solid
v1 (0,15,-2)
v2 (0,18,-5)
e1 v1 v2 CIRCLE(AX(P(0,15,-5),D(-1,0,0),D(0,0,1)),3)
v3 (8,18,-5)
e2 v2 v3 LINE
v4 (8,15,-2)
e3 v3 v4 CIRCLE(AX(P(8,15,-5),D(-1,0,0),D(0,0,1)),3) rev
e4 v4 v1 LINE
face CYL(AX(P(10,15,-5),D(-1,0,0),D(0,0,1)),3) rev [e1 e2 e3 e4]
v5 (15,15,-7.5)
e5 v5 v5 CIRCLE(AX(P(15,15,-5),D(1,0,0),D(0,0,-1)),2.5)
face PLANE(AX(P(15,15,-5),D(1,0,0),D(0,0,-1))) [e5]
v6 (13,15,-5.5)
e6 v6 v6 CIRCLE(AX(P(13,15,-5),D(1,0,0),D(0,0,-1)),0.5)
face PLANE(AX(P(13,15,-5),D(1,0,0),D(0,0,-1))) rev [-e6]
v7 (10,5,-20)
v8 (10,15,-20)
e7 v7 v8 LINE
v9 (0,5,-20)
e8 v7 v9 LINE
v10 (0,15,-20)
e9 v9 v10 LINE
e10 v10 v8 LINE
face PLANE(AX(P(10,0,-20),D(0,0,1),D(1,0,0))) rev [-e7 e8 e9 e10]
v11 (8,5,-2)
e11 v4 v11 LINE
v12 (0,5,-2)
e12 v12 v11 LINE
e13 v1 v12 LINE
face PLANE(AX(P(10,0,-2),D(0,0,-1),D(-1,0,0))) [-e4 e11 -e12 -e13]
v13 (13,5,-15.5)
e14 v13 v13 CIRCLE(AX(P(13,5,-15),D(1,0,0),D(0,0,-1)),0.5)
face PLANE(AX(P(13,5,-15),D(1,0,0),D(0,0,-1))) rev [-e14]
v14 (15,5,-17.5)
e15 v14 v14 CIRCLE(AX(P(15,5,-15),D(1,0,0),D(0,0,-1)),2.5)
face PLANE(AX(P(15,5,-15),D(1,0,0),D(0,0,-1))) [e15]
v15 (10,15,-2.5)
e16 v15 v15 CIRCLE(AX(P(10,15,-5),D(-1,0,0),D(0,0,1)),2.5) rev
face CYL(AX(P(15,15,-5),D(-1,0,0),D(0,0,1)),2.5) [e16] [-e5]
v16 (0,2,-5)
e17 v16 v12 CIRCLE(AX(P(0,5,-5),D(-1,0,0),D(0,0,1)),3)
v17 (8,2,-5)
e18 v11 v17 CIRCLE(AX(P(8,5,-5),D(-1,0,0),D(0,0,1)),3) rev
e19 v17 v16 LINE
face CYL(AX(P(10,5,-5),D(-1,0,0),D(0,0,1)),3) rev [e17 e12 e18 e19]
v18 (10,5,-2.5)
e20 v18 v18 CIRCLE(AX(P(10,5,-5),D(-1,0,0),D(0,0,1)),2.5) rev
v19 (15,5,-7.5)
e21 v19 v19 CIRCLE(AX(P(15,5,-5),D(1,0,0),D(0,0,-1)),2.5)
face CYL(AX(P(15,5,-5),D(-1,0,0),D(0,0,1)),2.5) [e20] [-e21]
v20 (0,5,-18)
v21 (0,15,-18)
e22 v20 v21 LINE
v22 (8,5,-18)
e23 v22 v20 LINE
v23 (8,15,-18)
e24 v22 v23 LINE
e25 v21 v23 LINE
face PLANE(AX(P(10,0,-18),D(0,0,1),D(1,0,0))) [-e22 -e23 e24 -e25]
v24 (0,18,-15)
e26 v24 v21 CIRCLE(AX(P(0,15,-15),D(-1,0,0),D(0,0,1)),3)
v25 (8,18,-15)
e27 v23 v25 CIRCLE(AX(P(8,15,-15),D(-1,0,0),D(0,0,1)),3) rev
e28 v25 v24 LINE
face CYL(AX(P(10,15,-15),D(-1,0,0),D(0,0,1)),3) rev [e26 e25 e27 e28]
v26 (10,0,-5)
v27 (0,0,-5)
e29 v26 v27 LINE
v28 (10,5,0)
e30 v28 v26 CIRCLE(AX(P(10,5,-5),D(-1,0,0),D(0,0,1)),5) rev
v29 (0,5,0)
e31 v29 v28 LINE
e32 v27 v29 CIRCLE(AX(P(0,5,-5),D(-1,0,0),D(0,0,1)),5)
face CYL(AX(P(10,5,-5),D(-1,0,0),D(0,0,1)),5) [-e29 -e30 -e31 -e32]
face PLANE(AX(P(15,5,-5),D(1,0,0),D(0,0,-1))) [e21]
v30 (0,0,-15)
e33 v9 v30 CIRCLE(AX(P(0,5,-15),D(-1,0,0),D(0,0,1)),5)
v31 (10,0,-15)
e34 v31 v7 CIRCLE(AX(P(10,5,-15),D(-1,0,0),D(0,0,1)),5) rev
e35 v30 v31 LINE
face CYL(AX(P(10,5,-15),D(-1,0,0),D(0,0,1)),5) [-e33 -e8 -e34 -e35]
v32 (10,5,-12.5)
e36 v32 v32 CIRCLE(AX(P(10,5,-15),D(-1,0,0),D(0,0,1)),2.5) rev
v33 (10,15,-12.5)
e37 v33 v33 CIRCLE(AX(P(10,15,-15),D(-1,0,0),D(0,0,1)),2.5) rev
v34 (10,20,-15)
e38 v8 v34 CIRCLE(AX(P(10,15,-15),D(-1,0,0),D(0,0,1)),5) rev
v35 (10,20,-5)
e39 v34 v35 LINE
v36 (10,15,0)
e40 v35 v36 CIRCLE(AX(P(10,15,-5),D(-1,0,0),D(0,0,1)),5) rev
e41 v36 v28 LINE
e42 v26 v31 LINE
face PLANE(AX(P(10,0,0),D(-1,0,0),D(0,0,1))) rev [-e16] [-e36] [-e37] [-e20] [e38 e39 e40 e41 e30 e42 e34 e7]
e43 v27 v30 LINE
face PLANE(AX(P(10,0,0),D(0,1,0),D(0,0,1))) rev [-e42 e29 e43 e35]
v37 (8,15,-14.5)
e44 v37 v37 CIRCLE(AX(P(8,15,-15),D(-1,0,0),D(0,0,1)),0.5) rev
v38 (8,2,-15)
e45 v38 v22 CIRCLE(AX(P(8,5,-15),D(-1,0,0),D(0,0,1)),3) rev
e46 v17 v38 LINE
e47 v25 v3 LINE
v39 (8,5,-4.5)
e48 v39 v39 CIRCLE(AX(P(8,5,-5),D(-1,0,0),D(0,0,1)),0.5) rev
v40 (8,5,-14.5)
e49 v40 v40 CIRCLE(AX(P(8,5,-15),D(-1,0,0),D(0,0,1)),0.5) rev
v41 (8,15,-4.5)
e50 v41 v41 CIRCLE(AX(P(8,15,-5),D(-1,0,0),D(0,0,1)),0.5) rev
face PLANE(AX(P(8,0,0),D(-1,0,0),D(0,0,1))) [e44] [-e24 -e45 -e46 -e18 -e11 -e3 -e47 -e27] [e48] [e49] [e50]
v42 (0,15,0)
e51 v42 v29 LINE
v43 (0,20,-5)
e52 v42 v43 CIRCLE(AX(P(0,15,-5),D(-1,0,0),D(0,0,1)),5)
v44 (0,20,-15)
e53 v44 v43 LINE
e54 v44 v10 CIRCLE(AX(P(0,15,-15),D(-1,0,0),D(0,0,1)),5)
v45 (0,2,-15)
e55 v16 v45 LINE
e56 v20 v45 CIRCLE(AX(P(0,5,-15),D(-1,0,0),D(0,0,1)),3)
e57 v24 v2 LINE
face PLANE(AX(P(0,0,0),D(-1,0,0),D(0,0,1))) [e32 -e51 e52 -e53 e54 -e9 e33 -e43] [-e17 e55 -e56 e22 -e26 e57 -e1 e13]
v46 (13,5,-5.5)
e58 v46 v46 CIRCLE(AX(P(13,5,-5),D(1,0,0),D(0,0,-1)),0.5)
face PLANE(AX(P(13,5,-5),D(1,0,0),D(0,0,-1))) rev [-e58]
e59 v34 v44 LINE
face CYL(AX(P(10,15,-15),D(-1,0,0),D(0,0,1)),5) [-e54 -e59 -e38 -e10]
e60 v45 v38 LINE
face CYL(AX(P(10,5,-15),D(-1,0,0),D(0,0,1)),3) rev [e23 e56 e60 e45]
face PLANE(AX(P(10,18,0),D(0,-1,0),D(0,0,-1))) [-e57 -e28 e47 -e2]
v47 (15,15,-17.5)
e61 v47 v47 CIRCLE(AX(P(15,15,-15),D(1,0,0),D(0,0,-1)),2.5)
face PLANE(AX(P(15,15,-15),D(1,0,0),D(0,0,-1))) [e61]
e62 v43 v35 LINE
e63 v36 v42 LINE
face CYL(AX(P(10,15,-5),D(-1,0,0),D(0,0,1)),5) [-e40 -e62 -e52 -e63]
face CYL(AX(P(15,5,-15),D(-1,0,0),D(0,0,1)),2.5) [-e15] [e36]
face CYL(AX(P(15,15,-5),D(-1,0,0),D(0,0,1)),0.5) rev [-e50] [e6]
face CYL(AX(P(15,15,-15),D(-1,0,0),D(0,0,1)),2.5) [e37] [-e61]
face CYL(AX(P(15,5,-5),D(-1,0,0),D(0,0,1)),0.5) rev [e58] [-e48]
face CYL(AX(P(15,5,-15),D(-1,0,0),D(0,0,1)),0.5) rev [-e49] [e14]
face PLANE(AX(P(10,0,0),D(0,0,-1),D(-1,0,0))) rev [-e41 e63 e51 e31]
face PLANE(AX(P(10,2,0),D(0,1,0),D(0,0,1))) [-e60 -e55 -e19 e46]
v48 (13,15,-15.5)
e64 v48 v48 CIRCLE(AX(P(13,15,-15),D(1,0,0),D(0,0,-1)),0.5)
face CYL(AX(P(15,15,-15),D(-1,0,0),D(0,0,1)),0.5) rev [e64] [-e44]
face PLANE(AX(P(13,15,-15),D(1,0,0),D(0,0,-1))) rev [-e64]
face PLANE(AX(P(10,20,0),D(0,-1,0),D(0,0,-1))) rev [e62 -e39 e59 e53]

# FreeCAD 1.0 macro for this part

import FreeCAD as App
import Part
import Sketcher


def edges_at(feature, points):
    """Names of the edges that pass closest to the given points."""
    edges = feature.Shape.Edges
    near = lambda p: min(range(len(edges)), key=lambda i: edges[i].distToShape(Part.Vertex(*p))[0])
    return sorted({f"Edge{near(p) + 1}" for p in points})


def faces_at(feature, points):
    """Names of the faces that lie closest to the given points."""
    faces = feature.Shape.Faces
    near = lambda p: min(range(len(faces)), key=lambda i: faces[i].distToShape(Part.Vertex(*p))[0])
    return sorted({f"Face{near(p) + 1}" for p in points})


def add_polygon(sketch, points):
    """Adds a closed chain of lines whose ends are joined by coincident constraints."""
    first, n = sketch.GeometryCount, len(points)
    for a, b in zip(points, points[1:] + points[:1]):
        sketch.addGeometry(Part.LineSegment(App.Vector(*a, 0), App.Vector(*b, 0)), False)
    for i in range(n):
        sketch.addConstraint(Sketcher.Constraint("Coincident", first + i, 2, first + (i + 1) % n, 1))

doc = App.newDocument("Part")
params = doc.addObject("Spreadsheet::Sheet", "Params")
for row, (alias, value) in enumerate([
    ("sketch1_width", "20 mm"),
    ("pad1_length", "10 mm"),
    ("sketch2_diameter", "5 mm"),
    ("pad2_length", "5 mm"),
    ("fillet_radius", "5 mm"),
    ("thickness_wall", "2 mm"),
], start=1):
    params.set(f"A{row}", alias)
    params.set(f"B{row}", "=" + value)
    params.setAlias(f"B{row}", alias)

body = doc.addObject("PartDesign::Body", "Body")

sketch1 = doc.addObject("Sketcher::SketchObject", "Sketch")
body.addObject(sketch1)
sketch1.AttachmentSupport = (doc.YZ_Plane, [""])
sketch1.MapMode = "FlatFace"
add_polygon(sketch1, [(20, 0), (0, 0), (0, -20), (20, -20)])
sketch1.addConstraint(Sketcher.Constraint("Horizontal", 0))
sketch1.addConstraint(Sketcher.Constraint("Vertical", 1))
sketch1.addConstraint(Sketcher.Constraint("Horizontal", 2))
sketch1.addConstraint(Sketcher.Constraint("Vertical", 3))
sketch1.addConstraint(Sketcher.Constraint("Coincident", 0, 2, -1, 1))
sketch1.addConstraint(Sketcher.Constraint("Equal", 2, 1))
sketch1.addConstraint(Sketcher.Constraint("DistanceX", 0, 2, 0, 1, 20.0))
sketch1.setExpression("Constraints[10]", "Params.sketch1_width")
pad1 = doc.addObject("PartDesign::Pad", "Pad")
body.addObject(pad1)
pad1.Profile = sketch1
pad1.setExpression("Length", "Params.pad1_length")

sketch2 = doc.addObject("Sketcher::SketchObject", "Sketch001")
body.addObject(sketch2)
sketch2.AttachmentSupport = (doc.YZ_Plane, [""])
sketch2.MapMode = "FlatFace"
sketch2.AttachmentOffset = App.Placement(App.Vector(0, 0, 10), App.Rotation())
sketch2.addGeometry(Part.Circle(App.Vector(15, -5, 0), App.Vector(0, 0, 1), 2.5), False)
sketch2.addGeometry(Part.Circle(App.Vector(15, -15, 0), App.Vector(0, 0, 1), 2.5), False)
sketch2.addGeometry(Part.Circle(App.Vector(5, -15, 0), App.Vector(0, 0, 1), 2.5), False)
sketch2.addGeometry(Part.Circle(App.Vector(5, -5, 0), App.Vector(0, 0, 1), 2.5), False)
sketch2.addConstraint(Sketcher.Constraint("Equal", 0, 1))
sketch2.addConstraint(Sketcher.Constraint("Equal", 1, 2))
sketch2.addConstraint(Sketcher.Constraint("Equal", 2, 3))
sketch2.addConstraint(Sketcher.Constraint("Horizontal", 1, 3, 2, 3))
sketch2.addConstraint(Sketcher.Constraint("Horizontal", 0, 3, 3, 3))
sketch2.addConstraint(Sketcher.Constraint("Vertical", 0, 3, 1, 3))
sketch2.addConstraint(Sketcher.Constraint("Vertical", 2, 3, 3, 3))
sketch2.addConstraint(Sketcher.Constraint("Diameter", 0, 5.0))
sketch2.addConstraint(Sketcher.Constraint("DistanceX", -1, 1, 0, 3, 15.0))
sketch2.addConstraint(Sketcher.Constraint("DistanceY", 0, 3, -1, 1, 5.0))
sketch2.addConstraint(Sketcher.Constraint("DistanceY", 1, 3, -1, 1, 15.0))
sketch2.addConstraint(Sketcher.Constraint("DistanceX", -1, 1, 2, 3, 5.0))
sketch2.setExpression("Constraints[7]", "Params.sketch2_diameter")
pad2 = doc.addObject("PartDesign::Pad", "Pad001")
body.addObject(pad2)
pad2.Profile = sketch2
pad2.setExpression("Length", "Params.pad2_length")
doc.recompute()

fillet = doc.addObject("PartDesign::Fillet", "Fillet")
body.addObject(fillet)
fillet.Base = (pad2, edges_at(pad2, [
    (5, 20, 0),
    (5, 20, -20),
    (5, 0, -20),
    (5, 0, 0),
]))
fillet.setExpression("Radius", "Params.fillet_radius")
doc.recompute()

thickness = doc.addObject("PartDesign::Thickness", "Thickness")
body.addObject(thickness)
thickness.Base = (fillet, faces_at(fillet, [(0, 10, -10)]))
thickness.setExpression("Value", "Params.thickness_wall")
thickness.Reversed = True
thickness.Join = "Intersection"

doc.recompute()
